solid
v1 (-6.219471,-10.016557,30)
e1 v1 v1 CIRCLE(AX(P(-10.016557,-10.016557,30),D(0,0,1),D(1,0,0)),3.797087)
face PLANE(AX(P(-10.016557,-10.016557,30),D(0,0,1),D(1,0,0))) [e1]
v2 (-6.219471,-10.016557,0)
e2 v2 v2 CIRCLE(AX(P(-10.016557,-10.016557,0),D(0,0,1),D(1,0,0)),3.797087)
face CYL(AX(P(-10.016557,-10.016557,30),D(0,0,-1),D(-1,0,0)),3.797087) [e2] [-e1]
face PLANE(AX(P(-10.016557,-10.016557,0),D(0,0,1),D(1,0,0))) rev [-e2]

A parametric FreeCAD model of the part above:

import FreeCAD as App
import Part
import Sketcher

doc = App.newDocument("Part")
body = doc.addObject("PartDesign::Body", "Body")

# Sketch on XY plane
sketch1 = body.newObject("Sketcher::SketchObject", "Sketch")
sketch1.AttachmentSupport = (doc.getObject("XY_Plane"), [""])
sketch1.MapMode = "FlatFace"
sketch1.addGeometry(Part.Circle(App.Vector(-10, -10, 0), App.Vector(0, 0, 1), 3.8), False)
sketch1.addConstraint([
    Sketcher.Constraint("Diameter", 0, 7.594173),
    Sketcher.Constraint("DistanceX", 0, 3, -1, 1, 10.016557),
    Sketcher.Constraint("DistanceY", 0, 3, -1, 1, 10.016557),
])
pad1 = body.newObject("PartDesign::Pad", "Pad")
pad1.Profile = sketch1
pad1.Length = 30

doc.recompute()
